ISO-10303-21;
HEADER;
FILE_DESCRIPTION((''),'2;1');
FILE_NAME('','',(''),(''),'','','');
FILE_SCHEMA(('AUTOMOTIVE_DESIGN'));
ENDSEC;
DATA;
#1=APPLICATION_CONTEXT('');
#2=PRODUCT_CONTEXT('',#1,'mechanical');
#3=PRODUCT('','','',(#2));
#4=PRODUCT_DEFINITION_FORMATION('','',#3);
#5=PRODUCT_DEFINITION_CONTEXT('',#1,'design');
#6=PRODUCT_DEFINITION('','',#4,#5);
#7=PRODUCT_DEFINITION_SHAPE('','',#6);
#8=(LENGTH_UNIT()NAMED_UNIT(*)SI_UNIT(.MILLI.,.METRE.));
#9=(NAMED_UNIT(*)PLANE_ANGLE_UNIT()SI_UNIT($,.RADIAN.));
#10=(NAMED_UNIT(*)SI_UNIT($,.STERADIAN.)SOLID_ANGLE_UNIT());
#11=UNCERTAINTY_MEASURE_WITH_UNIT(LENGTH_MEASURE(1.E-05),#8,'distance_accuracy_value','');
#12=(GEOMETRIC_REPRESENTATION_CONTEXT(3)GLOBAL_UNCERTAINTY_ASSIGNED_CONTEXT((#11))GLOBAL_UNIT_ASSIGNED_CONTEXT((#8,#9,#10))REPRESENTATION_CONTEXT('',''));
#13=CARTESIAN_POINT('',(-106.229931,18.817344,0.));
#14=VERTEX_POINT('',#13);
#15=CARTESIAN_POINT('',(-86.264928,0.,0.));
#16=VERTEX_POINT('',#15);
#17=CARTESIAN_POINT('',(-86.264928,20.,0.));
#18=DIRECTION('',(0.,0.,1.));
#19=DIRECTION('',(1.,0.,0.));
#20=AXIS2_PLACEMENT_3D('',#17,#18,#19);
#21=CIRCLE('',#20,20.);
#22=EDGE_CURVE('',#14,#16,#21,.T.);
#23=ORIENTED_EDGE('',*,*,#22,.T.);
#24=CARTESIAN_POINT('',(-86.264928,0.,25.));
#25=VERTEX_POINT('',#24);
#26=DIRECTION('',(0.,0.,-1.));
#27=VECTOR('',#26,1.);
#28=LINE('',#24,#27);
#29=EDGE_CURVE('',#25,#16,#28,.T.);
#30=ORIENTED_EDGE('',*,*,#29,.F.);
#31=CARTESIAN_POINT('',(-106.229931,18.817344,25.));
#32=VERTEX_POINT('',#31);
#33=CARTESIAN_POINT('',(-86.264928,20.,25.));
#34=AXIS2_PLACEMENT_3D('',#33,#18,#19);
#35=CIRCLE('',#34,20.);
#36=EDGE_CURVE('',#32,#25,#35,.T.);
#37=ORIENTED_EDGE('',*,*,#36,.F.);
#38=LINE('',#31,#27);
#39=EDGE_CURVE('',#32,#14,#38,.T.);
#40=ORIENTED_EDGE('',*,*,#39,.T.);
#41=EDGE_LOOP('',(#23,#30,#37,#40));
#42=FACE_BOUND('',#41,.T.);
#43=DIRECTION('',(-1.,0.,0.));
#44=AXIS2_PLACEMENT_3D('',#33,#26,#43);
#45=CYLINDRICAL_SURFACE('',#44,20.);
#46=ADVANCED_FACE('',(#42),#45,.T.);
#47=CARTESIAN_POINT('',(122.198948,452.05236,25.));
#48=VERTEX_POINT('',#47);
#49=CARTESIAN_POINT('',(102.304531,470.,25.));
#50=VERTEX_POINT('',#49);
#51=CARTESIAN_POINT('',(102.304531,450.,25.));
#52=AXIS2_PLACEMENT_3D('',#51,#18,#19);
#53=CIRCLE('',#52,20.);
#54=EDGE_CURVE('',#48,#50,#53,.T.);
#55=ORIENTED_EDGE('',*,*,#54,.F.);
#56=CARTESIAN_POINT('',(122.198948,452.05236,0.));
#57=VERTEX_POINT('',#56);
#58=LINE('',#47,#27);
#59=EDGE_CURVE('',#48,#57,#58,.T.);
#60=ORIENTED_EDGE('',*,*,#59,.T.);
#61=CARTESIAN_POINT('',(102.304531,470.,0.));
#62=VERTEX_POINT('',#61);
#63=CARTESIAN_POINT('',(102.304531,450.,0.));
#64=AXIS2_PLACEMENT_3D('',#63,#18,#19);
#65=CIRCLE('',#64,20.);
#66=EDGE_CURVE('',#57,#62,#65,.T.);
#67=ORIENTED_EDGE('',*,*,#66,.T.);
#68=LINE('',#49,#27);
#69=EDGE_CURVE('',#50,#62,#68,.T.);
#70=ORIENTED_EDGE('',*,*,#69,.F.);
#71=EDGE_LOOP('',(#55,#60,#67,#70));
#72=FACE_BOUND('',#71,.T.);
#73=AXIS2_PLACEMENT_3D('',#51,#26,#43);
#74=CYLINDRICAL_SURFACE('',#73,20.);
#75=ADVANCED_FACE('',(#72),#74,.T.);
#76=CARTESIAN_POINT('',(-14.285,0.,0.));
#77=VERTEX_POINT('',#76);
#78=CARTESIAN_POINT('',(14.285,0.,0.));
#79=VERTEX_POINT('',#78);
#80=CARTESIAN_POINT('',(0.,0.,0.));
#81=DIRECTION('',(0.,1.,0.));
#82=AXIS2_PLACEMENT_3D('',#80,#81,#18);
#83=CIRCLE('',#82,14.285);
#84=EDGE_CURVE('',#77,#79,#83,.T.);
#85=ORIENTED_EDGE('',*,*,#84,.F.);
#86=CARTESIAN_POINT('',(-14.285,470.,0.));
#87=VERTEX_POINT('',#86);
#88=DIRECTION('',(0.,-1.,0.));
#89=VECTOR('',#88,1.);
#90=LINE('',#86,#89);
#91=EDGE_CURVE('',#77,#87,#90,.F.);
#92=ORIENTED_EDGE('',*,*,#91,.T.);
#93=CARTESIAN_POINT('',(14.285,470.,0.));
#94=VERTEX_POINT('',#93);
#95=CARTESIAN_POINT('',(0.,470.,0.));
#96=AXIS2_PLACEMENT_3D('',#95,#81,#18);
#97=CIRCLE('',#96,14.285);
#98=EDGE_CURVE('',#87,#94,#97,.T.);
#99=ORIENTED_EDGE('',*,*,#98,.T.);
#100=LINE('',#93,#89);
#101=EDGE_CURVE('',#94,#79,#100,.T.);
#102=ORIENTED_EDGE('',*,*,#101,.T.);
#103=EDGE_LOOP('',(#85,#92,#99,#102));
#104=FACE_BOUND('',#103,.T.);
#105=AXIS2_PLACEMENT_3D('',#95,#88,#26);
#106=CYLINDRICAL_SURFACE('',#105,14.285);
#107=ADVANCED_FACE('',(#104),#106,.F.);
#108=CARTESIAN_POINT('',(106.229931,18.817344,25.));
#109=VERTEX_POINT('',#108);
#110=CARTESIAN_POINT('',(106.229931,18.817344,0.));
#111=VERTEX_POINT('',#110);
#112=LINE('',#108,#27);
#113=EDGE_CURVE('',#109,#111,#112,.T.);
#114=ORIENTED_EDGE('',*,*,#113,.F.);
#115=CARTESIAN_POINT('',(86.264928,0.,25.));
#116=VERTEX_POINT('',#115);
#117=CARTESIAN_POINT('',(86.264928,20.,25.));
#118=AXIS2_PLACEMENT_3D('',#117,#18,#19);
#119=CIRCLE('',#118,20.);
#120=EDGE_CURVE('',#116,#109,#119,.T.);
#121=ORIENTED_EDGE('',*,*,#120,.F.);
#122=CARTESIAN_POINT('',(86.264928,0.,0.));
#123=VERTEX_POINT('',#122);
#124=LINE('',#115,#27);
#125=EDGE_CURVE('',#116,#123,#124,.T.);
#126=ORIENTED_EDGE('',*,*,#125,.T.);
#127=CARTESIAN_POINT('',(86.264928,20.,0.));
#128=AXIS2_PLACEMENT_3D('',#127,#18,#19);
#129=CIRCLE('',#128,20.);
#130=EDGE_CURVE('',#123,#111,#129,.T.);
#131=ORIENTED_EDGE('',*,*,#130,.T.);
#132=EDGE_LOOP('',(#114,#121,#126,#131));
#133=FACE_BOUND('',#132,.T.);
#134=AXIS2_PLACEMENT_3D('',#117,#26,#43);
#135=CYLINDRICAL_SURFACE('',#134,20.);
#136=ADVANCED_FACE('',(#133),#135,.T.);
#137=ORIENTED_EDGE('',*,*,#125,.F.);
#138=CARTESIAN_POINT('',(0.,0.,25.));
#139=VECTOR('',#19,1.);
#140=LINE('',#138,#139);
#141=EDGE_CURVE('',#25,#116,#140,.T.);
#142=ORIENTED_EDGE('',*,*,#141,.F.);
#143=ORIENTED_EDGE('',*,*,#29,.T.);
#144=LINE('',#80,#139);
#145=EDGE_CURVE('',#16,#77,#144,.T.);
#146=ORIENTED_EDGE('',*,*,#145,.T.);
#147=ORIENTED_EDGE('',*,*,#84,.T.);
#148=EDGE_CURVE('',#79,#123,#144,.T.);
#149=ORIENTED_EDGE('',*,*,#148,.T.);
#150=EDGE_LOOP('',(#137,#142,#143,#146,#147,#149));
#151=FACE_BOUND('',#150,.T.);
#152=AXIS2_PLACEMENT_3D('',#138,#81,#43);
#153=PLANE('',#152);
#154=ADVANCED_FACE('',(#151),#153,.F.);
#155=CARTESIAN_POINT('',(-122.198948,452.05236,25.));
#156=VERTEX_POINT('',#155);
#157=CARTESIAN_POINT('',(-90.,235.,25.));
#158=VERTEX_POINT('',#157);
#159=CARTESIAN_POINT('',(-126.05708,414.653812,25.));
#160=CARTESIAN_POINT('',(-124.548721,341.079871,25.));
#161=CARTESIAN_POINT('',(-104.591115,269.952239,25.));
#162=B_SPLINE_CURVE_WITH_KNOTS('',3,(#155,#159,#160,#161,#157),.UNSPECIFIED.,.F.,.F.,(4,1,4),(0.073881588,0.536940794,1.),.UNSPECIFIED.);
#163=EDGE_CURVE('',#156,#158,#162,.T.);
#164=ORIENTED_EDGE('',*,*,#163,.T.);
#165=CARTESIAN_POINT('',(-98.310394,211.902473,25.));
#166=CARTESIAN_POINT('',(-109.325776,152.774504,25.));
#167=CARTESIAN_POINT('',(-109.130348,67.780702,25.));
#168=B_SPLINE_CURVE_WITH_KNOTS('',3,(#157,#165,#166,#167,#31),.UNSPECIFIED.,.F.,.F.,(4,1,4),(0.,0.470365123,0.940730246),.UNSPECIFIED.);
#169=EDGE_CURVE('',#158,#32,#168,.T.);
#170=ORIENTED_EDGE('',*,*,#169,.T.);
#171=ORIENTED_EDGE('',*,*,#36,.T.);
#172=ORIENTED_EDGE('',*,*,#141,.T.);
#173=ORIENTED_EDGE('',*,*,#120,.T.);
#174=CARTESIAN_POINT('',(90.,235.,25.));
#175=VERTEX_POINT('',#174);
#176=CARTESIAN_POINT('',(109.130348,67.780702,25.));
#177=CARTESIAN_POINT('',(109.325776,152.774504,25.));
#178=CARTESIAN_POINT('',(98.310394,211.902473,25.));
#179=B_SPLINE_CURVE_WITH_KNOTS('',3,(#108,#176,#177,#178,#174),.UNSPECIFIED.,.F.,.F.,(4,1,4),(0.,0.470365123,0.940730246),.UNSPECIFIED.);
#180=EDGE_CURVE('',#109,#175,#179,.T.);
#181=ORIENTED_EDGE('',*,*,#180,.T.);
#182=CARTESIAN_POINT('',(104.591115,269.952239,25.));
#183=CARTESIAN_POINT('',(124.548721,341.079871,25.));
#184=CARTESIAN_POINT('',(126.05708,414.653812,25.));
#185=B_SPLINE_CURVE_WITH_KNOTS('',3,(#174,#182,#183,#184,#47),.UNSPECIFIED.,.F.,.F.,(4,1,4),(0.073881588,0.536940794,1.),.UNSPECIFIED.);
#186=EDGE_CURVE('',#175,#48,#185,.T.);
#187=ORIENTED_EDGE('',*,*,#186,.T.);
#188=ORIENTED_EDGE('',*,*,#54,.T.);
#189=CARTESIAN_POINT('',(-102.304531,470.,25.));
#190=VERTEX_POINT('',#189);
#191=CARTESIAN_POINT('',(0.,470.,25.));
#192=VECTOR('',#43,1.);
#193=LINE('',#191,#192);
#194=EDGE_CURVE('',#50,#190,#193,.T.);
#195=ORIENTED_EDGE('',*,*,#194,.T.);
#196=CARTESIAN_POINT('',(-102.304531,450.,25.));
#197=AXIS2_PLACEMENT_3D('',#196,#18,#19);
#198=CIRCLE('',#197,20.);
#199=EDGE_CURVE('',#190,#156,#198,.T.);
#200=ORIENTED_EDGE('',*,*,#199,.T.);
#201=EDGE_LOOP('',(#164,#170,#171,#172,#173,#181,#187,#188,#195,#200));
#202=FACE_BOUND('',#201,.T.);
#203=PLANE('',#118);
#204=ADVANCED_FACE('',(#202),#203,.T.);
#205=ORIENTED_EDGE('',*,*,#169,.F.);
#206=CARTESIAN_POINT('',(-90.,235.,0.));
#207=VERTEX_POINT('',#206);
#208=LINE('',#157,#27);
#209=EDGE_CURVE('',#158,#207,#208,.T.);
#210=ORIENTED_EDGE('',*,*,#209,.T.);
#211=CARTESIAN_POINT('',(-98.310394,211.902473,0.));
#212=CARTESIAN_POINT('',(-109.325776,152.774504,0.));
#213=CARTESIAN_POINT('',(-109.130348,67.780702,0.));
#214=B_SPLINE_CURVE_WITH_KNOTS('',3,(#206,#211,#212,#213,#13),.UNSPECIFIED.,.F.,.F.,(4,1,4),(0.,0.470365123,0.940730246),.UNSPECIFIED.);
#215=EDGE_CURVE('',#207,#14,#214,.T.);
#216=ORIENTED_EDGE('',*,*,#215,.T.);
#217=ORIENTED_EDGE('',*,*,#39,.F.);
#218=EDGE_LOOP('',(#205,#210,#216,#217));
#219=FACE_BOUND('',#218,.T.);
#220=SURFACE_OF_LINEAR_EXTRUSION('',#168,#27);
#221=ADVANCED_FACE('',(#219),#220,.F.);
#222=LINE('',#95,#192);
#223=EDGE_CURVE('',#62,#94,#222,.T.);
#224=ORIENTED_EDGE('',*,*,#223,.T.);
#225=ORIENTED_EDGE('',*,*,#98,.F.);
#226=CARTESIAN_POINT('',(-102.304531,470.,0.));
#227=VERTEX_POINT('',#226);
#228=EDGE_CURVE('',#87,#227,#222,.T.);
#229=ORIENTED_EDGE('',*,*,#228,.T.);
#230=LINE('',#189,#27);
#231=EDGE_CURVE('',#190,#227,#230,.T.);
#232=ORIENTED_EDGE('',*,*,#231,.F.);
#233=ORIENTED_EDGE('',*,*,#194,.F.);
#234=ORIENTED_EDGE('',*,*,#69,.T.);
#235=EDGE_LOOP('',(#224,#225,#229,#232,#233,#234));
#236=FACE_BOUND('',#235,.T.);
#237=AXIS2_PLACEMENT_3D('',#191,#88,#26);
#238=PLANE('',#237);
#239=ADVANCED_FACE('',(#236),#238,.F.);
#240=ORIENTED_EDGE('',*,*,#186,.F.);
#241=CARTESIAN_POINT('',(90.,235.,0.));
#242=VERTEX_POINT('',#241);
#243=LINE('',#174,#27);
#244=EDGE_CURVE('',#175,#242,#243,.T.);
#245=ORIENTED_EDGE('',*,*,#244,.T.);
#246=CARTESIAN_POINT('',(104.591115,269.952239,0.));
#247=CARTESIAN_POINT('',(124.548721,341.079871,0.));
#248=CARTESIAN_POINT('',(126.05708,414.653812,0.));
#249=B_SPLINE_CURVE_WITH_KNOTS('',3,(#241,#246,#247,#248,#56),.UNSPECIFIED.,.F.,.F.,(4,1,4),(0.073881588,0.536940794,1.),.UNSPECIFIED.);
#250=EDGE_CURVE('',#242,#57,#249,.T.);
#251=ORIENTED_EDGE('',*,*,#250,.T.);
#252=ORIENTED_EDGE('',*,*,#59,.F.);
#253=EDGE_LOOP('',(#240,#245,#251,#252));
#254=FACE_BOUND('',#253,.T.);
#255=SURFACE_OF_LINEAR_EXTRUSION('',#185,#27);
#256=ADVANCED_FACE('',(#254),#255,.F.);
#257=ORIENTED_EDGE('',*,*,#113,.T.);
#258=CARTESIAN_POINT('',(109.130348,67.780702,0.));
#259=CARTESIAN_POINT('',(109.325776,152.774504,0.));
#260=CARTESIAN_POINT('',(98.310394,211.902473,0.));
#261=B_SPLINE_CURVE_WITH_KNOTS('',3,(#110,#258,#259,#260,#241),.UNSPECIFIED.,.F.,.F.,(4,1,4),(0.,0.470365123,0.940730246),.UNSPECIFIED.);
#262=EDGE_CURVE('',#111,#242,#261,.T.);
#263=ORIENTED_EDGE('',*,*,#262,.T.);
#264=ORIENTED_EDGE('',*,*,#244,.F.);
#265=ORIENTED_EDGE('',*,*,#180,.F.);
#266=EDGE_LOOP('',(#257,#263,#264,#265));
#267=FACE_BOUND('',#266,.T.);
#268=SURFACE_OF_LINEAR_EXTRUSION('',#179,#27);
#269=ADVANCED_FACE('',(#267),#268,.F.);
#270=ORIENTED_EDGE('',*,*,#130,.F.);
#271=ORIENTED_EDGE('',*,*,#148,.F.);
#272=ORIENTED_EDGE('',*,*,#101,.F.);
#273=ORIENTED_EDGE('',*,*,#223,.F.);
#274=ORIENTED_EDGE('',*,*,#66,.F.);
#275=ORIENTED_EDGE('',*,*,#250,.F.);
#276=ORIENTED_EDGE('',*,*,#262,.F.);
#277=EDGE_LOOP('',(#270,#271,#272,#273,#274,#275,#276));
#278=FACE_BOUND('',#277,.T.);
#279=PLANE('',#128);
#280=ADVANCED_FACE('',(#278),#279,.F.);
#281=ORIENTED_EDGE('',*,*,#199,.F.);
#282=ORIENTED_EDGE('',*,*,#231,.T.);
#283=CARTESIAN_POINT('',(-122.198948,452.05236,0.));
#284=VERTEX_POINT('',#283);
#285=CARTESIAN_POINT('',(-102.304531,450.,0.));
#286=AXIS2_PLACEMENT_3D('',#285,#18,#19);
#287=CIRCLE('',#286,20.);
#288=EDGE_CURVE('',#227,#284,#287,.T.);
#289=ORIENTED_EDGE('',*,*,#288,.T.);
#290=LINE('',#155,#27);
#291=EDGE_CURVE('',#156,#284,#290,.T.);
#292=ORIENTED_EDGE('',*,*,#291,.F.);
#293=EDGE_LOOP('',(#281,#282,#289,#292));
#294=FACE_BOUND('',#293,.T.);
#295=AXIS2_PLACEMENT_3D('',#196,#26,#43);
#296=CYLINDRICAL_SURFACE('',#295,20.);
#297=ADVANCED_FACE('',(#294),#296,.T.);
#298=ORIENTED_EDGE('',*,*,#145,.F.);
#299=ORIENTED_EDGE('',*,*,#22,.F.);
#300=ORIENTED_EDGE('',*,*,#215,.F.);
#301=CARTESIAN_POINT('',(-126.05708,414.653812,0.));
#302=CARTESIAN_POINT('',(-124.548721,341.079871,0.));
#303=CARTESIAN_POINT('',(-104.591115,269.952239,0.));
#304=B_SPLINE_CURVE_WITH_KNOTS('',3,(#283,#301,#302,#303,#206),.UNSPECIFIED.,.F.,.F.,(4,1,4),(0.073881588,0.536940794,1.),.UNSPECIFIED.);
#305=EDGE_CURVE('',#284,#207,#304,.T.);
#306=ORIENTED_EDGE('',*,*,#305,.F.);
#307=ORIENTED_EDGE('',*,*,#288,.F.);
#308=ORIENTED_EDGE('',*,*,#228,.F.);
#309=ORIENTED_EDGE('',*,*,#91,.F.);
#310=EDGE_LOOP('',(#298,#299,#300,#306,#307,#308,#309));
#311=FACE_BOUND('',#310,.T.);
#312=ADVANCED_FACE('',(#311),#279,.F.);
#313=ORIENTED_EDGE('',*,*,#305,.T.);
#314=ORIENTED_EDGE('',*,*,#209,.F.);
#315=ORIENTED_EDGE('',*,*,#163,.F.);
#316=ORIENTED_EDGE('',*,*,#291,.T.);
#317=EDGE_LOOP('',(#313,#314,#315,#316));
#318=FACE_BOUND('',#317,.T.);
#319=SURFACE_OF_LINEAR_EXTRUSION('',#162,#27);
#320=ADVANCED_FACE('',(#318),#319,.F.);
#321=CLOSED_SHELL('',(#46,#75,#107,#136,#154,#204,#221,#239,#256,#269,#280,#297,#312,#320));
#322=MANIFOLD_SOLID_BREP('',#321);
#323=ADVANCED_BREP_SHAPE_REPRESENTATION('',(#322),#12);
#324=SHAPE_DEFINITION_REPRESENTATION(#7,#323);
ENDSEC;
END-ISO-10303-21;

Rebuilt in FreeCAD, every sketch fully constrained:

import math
import FreeCAD as App
import Part
import Sketcher

V = App.Vector

doc = App.newDocument("Part")
body = doc.addObject("PartDesign::Body", "Body")

sketch1 = body.newObject("Sketcher::SketchObject", "Sketch")
sketch1.AttachmentSupport = (doc.getObject("XY_Plane"), [""])
sketch1.MapMode = "FlatFace"
sketch1.addGeometry(Part.ArcOfCircle(Part.Circle(V(102.304531, 450, 0), V(0, 0, 1), 20), math.radians(5.889947), math.radians(90)), False)
sketch1.addGeometry(Part.LineSegment(V(102.304531, 470, 0), V(-102.304531, 470, 0)), False)
sketch1.addGeometry(Part.ArcOfCircle(Part.Circle(V(-102.304531, 450, 0), V(0, 0, 1), 20), math.radians(90), math.radians(174.110053)), False)
sketch1.addGeometry(Part.BSplineCurve([V(-122.198948, 452.05236, 0), V(-126.05708, 414.653812, 0), V(-124.548721, 341.079871, 0), V(-104.591115, 269.952239, 0), V(-90, 235, 0)], [4, 1, 4], [0.073881588, 0.536940794, 1], False, 3, [1, 1, 1, 1, 1], False), False)
sketch1.addGeometry(Part.BSplineCurve([V(-90, 235, 0), V(-98.310394, 211.902473, 0), V(-109.325776, 152.774504, 0), V(-109.130348, 67.780702, 0), V(-106.229931, 18.817344, 0)], [4, 1, 4], [0, 0.470365123, 0.940730246], False, 3, [1, 1, 1, 1, 1], False), False)
sketch1.addGeometry(Part.ArcOfCircle(Part.Circle(V(-86.264928, 20, 0), V(0, 0, 1), 20), math.radians(-176.609961), math.radians(-90)), False)
sketch1.addGeometry(Part.LineSegment(V(-86.264928, 0, 0), V(86.264928, 0, 0)), False)
sketch1.addGeometry(Part.ArcOfCircle(Part.Circle(V(86.264928, 20, 0), V(0, 0, 1), 20), math.radians(-90), math.radians(-3.390039)), False)
sketch1.addGeometry(Part.BSplineCurve([V(90, 235, 0), V(98.310394, 211.902473, 0), V(109.325776, 152.774504, 0), V(109.130348, 67.780702, 0), V(106.229931, 18.817344, 0)], [4, 1, 4], [0, 0.470365123, 0.940730246], False, 3, [1, 1, 1, 1, 1], False), False)
sketch1.addGeometry(Part.BSplineCurve([V(122.198948, 452.05236, 0), V(126.05708, 414.653812, 0), V(124.548721, 341.079871, 0), V(104.591115, 269.952239, 0), V(90, 235, 0)], [4, 1, 4], [0.073881588, 0.536940794, 1], False, 3, [1, 1, 1, 1, 1], False), False)
sketch1.addConstraint(Sketcher.Constraint("Block", 3))
sketch1.addConstraint(Sketcher.Constraint("Block", 4))
sketch1.addConstraint(Sketcher.Constraint("Block", 8))
sketch1.addConstraint(Sketcher.Constraint("Block", 9))
sketch1.addConstraint(Sketcher.Constraint("Tangent", 0, 2, 1, 1))
sketch1.addConstraint(Sketcher.Constraint("Tangent", 1, 2, 2, 1))
sketch1.addConstraint(Sketcher.Constraint("Coincident", 2, 2, 3, 1))
sketch1.addConstraint(Sketcher.Constraint("Coincident", 4, 2, 5, 1))
sketch1.addConstraint(Sketcher.Constraint("Tangent", 5, 2, 6, 1))
sketch1.addConstraint(Sketcher.Constraint("Tangent", 6, 2, 7, 1))
sketch1.addConstraint(Sketcher.Constraint("Coincident", 7, 2, 8, 2))
sketch1.addConstraint(Sketcher.Constraint("Coincident", 9, 1, 0, 1))
sketch1.addConstraint(Sketcher.Constraint("Horizontal", 1))
sketch1.addConstraint(Sketcher.Constraint("Horizontal", 6))
sketch1.addConstraint(Sketcher.Constraint("Equal", 0, 2))
sketch1.addConstraint(Sketcher.Constraint("Equal", 2, 5))
sketch1.addConstraint(Sketcher.Constraint("Equal", 5, 7))
sketch1.addConstraint(Sketcher.Constraint("PointOnObject", 5, 2, -1))
sketch1.addConstraint(Sketcher.Constraint("Radius", 0, 20.0))
sketch1.addConstraint(Sketcher.Constraint("DistanceY", -1, 1, 0, 3, 450.0))
pad1 = body.newObject("PartDesign::Pad", "Pad")
pad1.Profile = sketch1
pad1.Length = 25

sketch2 = body.newObject("Sketcher::SketchObject", "Sketch001")
sketch2.AttachmentSupport = (doc.getObject("XZ_Plane"), [""])
sketch2.MapMode = "FlatFace"
sketch2.addGeometry(Part.Circle(V(0, 0, 0), V(0, 0, 1), 14), False)
sketch2.addConstraint(Sketcher.Constraint("Coincident", 0, 3, -1, 1))
sketch2.addConstraint(Sketcher.Constraint("Diameter", 0, 28.57))
pocket1 = body.newObject("PartDesign::Pocket", "Pocket")
pocket1.Profile = sketch2
pocket1.Type = "ThroughAll"

doc.recompute()
